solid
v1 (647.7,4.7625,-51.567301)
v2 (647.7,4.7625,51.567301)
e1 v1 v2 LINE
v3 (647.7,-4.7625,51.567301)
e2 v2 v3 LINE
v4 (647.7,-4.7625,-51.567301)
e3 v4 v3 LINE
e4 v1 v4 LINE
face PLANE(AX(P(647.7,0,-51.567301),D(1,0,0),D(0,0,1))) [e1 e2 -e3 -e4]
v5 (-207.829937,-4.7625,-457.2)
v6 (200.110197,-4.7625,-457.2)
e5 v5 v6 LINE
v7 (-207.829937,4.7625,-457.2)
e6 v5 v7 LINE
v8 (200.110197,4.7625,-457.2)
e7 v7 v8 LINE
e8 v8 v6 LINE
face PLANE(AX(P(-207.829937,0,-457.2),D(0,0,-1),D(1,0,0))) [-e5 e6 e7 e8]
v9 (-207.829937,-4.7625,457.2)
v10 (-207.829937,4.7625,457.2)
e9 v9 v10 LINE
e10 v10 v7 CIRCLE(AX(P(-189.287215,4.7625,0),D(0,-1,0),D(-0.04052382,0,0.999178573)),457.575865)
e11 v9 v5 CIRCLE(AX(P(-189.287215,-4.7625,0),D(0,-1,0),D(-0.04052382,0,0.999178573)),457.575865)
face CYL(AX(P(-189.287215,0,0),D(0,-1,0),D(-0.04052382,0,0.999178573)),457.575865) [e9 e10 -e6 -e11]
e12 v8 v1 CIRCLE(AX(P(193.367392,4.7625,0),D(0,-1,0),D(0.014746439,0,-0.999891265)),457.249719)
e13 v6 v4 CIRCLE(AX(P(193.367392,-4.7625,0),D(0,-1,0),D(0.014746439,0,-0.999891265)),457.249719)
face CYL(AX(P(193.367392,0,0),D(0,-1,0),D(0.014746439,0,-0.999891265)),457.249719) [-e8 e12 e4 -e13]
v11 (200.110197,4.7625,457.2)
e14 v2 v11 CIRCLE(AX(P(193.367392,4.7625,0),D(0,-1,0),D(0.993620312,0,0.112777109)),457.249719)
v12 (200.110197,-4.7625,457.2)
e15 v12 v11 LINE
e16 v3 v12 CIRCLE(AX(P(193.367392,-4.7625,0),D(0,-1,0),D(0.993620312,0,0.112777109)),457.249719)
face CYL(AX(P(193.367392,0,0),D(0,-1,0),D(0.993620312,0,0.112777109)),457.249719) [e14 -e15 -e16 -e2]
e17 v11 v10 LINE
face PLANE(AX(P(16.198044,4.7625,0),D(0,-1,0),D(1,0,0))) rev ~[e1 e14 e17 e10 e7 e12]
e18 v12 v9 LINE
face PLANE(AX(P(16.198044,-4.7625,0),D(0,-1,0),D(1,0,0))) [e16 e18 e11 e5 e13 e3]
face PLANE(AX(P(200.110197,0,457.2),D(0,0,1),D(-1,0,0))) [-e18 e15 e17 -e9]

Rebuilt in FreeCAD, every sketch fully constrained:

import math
import FreeCAD as App
import Part
import Sketcher
from FreeCAD import Vector
Q = App.Units.Quantity

doc = App.newDocument("Part")
body = doc.addObject("PartDesign::Body", "Body")

sketch1 = body.newObject("Sketcher::SketchObject", "Sketch")
sketch1.AttachmentSupport = (doc.getObject("XZ_Plane"), [""])
sketch1.MapMode = "FlatFace"
sketch1.addGeometry([
    Part.LineSegment(Vector(-208, -457, 0), Vector(200, -457, 0)),
    Part.ArcOfCircle(Part.Circle(Vector(193, 0, 0), Vector(0, 0, 1), 457), math.radians(-89), math.radians(-6)),
    Part.LineSegment(Vector(648, -52, 0), Vector(648, 52, 0)),
    Part.ArcOfCircle(Part.Circle(Vector(193, 0, 0), Vector(0, 0, 1), 457), math.radians(6), math.radians(89)),
    Part.LineSegment(Vector(200, 457, 0), Vector(-208, 457, 0)),
    Part.ArcOfCircle(Part.Circle(Vector(-189, 0, 0), Vector(0, 0, 1), 458), math.radians(92), math.radians(268)),
], False)
sketch1.addConstraint([
    Sketcher.Constraint("Coincident", 0, 2, 1, 1),
    Sketcher.Constraint("Coincident", 1, 2, 2, 1),
    Sketcher.Constraint("Coincident", 2, 2, 3, 1),
    Sketcher.Constraint("Coincident", 3, 2, 4, 1),
    Sketcher.Constraint("Coincident", 4, 2, 5, 1),
    Sketcher.Constraint("Coincident", 5, 2, 0, 1),
    Sketcher.Constraint("Horizontal", 0),
    Sketcher.Constraint("Vertical", 2),
    Sketcher.Constraint("Horizontal", 4),
    Sketcher.Constraint("Coincident", 3, 3, 1, 3),
    Sketcher.Constraint("Equal", 1, 3),
    Sketcher.Constraint("Symmetric", 0, 2, 3, 2, -1),
    Sketcher.Constraint("PointOnObject", 5, 3, -1),
    Sketcher.Constraint("DistanceY", 0, 2, -1, 1, Q("18 in")),
    Sketcher.Constraint("DistanceX", -1, 1, 1, 2, Q("25.5 in")),
    Sketcher.Constraint("Radius", 1, Q("457.249719 mm")),
    Sketcher.Constraint("Radius", 5, Q("457.575865 mm")),
    Sketcher.Constraint("DistanceY", -1, 1, 2, 2, Q("51.567301 mm")),
    Sketcher.Constraint("DistanceX", 0, 1, 0, 2, Q("407.940134 mm")),
])
pad1 = body.newObject("PartDesign::Pad", "Pad")
pad1.Profile = sketch1
pad1.Length = Q("0.375 in")
pad1.Midplane = True

doc.recompute()
